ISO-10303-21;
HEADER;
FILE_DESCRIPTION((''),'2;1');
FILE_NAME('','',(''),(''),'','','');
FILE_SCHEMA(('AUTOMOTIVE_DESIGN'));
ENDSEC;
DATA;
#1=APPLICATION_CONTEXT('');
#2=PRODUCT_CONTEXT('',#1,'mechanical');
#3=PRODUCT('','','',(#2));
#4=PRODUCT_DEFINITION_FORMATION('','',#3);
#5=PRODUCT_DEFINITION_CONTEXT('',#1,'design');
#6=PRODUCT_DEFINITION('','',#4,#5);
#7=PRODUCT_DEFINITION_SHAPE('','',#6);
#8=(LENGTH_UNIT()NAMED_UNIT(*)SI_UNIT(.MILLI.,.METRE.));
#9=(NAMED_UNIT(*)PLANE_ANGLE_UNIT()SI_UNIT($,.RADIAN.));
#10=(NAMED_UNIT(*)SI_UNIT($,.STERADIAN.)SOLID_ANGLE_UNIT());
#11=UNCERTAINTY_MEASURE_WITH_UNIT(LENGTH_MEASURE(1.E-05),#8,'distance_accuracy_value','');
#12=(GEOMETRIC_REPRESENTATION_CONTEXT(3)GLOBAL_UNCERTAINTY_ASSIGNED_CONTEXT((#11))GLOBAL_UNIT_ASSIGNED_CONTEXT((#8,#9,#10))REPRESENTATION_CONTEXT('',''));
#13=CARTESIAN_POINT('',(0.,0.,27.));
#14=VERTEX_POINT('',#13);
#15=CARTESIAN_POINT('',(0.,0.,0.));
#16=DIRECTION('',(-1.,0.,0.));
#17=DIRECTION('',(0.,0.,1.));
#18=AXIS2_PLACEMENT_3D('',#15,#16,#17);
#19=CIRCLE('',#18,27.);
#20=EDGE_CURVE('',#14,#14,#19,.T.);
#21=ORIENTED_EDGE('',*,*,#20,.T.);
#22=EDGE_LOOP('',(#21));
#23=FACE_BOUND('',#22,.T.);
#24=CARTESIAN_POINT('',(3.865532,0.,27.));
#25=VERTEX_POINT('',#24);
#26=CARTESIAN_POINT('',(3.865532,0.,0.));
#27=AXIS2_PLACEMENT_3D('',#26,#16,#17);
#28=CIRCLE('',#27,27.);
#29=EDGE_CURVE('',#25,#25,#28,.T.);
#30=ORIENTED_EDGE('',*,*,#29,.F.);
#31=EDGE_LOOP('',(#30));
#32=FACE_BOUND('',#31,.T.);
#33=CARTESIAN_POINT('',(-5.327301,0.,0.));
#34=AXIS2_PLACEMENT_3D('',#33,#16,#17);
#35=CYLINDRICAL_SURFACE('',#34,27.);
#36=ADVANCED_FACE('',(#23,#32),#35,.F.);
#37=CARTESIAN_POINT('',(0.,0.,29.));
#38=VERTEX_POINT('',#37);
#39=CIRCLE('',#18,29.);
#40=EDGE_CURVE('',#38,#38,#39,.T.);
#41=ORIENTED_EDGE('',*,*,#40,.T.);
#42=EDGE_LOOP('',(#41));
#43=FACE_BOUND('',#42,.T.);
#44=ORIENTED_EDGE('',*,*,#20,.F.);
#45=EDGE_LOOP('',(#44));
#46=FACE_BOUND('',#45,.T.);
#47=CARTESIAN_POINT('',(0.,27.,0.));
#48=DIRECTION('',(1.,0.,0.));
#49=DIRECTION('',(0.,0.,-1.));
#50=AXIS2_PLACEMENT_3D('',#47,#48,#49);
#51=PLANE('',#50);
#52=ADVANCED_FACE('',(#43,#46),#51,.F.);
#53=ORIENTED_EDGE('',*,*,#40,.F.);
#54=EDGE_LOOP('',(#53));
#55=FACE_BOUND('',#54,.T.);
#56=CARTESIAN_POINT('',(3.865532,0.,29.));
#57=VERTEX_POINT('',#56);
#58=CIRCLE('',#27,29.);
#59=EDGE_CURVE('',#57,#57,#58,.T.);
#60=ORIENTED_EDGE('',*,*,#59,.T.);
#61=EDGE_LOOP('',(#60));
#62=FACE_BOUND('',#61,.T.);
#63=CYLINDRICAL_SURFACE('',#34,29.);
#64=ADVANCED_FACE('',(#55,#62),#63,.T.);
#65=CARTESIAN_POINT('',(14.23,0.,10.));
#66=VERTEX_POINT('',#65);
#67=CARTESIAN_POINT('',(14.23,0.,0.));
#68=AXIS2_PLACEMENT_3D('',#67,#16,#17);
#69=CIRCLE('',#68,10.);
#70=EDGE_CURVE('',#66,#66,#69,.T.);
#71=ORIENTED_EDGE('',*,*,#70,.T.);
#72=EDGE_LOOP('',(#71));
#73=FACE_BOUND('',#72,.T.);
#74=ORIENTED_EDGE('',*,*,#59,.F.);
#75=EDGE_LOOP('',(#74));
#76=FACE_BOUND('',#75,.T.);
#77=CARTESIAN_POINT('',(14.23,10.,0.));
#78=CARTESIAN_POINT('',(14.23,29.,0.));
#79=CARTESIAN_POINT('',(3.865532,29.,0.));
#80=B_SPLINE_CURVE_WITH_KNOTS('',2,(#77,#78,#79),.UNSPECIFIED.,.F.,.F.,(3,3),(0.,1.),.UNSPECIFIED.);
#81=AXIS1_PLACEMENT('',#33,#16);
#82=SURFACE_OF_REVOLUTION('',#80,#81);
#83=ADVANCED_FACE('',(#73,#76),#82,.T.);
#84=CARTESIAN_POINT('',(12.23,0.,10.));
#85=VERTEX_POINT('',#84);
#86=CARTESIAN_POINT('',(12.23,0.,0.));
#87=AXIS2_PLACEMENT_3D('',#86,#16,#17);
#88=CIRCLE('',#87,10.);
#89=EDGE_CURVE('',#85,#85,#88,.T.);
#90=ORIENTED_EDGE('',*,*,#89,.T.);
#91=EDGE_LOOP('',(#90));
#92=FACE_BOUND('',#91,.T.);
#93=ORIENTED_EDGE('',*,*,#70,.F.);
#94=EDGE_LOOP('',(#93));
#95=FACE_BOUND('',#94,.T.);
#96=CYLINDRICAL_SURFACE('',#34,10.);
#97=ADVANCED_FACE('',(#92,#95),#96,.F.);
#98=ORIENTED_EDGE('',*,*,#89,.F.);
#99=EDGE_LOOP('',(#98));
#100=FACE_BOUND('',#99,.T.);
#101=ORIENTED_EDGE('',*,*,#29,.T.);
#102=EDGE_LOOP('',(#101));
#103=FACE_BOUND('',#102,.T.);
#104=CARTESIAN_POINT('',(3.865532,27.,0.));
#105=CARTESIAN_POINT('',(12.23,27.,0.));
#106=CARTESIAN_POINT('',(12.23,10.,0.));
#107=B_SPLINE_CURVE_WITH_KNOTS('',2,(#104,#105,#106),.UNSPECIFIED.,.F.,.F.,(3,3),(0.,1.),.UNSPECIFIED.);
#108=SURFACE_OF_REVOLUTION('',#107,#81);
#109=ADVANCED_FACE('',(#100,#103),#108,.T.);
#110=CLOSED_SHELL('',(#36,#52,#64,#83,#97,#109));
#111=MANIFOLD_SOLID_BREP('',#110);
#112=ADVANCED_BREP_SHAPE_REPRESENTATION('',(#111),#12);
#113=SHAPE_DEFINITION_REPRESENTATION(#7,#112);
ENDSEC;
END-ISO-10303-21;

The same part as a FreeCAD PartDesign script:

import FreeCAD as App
import Part
import Sketcher

doc = App.newDocument("Part")
body = doc.addObject("PartDesign::Body", "Body")

sketch1 = body.newObject("Sketcher::SketchObject", "Sketch")
sketch1.AttachmentSupport = (doc.getObject("XY_Plane"), [""])
sketch1.MapMode = "FlatFace"
sketch1.addGeometry(Part.LineSegment(App.Vector(0, 29, 0), App.Vector(0, 27, 0)), False)
sketch1.addGeometry(Part.LineSegment(App.Vector(0, 27, 0), App.Vector(3.865532, 27, 0)), False)
sketch1.addGeometry(Part.BSplineCurve([App.Vector(3.865532, 27, 0), App.Vector(12.23, 27, 0), App.Vector(12.23, 10, 0)], [3, 3], [0, 1], False, 2, [1, 1, 1], False), False)
sketch1.addGeometry(Part.LineSegment(App.Vector(12.23, 10, 0), App.Vector(14.23, 10, 0)), False)
sketch1.addGeometry(Part.BSplineCurve([App.Vector(3.865532, 29, 0), App.Vector(14.23, 29, 0), App.Vector(14.23, 10, 0)], [3, 3], [0, 1], False, 2, [1, 1, 1], False), False)
sketch1.addGeometry(Part.LineSegment(App.Vector(3.865532, 29, 0), App.Vector(0, 29, 0)), False)
sketch1.addConstraint(Sketcher.Constraint("Block", 2))
sketch1.addConstraint(Sketcher.Constraint("Block", 4))
sketch1.addConstraint(Sketcher.Constraint("Coincident", 0, 2, 1, 1))
sketch1.addConstraint(Sketcher.Constraint("Coincident", 1, 2, 2, 1))
sketch1.addConstraint(Sketcher.Constraint("Coincident", 2, 2, 3, 1))
sketch1.addConstraint(Sketcher.Constraint("Coincident", 3, 2, 4, 2))
sketch1.addConstraint(Sketcher.Constraint("Coincident", 4, 1, 5, 1))
sketch1.addConstraint(Sketcher.Constraint("Coincident", 5, 2, 0, 1))
sketch1.addConstraint(Sketcher.Constraint("Vertical", 0))
sketch1.addConstraint(Sketcher.Constraint("Horizontal", 1))
sketch1.addConstraint(Sketcher.Constraint("Horizontal", 5))
sketch1.addConstraint(Sketcher.Constraint("PointOnObject", 0, 2, -2))
revolution = body.newObject("PartDesign::Revolution", "Revolution")
revolution.Profile = sketch1
revolution.ReferenceAxis = (sketch1, ["H_Axis"])
revolution.Angle = 360

doc.recompute()
